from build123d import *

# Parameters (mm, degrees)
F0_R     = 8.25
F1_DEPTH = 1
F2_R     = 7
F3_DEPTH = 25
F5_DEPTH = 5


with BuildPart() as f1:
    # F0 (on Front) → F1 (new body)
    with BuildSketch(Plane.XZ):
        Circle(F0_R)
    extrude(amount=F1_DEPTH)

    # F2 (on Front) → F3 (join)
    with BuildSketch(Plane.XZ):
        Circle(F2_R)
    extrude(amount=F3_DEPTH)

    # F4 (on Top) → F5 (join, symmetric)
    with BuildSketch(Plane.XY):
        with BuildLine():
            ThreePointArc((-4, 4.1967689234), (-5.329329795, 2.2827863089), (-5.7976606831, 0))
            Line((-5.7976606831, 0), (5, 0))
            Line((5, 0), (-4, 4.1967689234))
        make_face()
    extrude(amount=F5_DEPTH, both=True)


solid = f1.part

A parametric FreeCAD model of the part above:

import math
import FreeCAD as App
import Part
import Sketcher
Q = App.Units.Quantity

doc = App.newDocument("Part")
params = doc.addObject("Spreadsheet::Sheet", "Params")
for row, (alias, value) in enumerate([
    ("sketch1_diameter", "16.5 mm"),
    ("pad1_length", "1 mm"),
    ("sketch2_diameter", "14 mm"),
    ("pad2_length", "25 mm"),
    ("pad3_length", "10 mm"),
], start=1):
    params.set(f"A{row}", alias)
    params.set(f"B{row}", "=" + value)
    params.setAlias(f"B{row}", alias)

body = doc.addObject("PartDesign::Body", "Body")

sketch1 = body.newObject("Sketcher::SketchObject", "Sketch")
sketch1.AttachmentSupport = (doc.getObject("XZ_Plane"), [""])
sketch1.MapMode = "FlatFace"
sketch1.addGeometry(Part.Circle(App.Vector(0, 0, 0), App.Vector(0, 0, 1), 8.25), False)
sketch1.addConstraint([
    Sketcher.Constraint("Coincident", 0, 3, -1, 1),
    Sketcher.Constraint("Diameter", 0, Q("16.5 mm")),
])
sketch1.setExpression("Constraints[1]", "Params.sketch1_diameter")
pad1 = body.newObject("PartDesign::Pad", "Pad")
pad1.Profile = sketch1
pad1.setExpression("Length", "Params.pad1_length")

sketch2 = body.newObject("Sketcher::SketchObject", "Sketch001")
sketch2.AttachmentSupport = (doc.getObject("XZ_Plane"), [""])
sketch2.MapMode = "FlatFace"
sketch2.addGeometry(Part.Circle(App.Vector(0, 0, 0), App.Vector(0, 0, 1), 7), False)
sketch2.addConstraint([
    Sketcher.Constraint("Coincident", 0, 3, -1, 1),
    Sketcher.Constraint("Diameter", 0, Q("14 mm")),
])
sketch2.setExpression("Constraints[1]", "Params.sketch2_diameter")
pad2 = body.newObject("PartDesign::Pad", "Pad001")
pad2.Profile = sketch2
pad2.setExpression("Length", "Params.pad2_length")

sketch3 = body.newObject("Sketcher::SketchObject", "Sketch002")
sketch3.AttachmentSupport = (doc.getObject("XY_Plane"), [""])
sketch3.MapMode = "FlatFace"
sketch3.addGeometry([
    Part.ArcOfCircle(Part.Circle(App.Vector(0, 0, 0), App.Vector(0, 0, 1), 5.797661), math.radians(133.624841), math.radians(180)),
    Part.LineSegment(App.Vector(-5.797661, 0, 0), App.Vector(5, 0, 0)),
    Part.LineSegment(App.Vector(5, 0, 0), App.Vector(-4, 4.196769, 0)),
], False)
sketch3.addConstraint([
    Sketcher.Constraint("Coincident", 0, 2, 1, 1),
    Sketcher.Constraint("Coincident", 1, 2, 2, 1),
    Sketcher.Constraint("Coincident", 2, 2, 0, 1),
    Sketcher.Constraint("Horizontal", 1),
    Sketcher.Constraint("Coincident", 0, 3, -1, 1),
    Sketcher.Constraint("PointOnObject", 0, 2, -1),
    Sketcher.Constraint("Angle", 2, Q("155 deg")),
    Sketcher.Constraint("DistanceX", -1, 1, 1, 2, Q("5 mm")),
    Sketcher.Constraint("DistanceX", 2, 2, -1, 1, Q("4 mm")),
])
pad3 = body.newObject("PartDesign::Pad", "Pad002")
pad3.Profile = sketch3
pad3.setExpression("Length", "Params.pad3_length")
pad3.Midplane = True

doc.recompute()
